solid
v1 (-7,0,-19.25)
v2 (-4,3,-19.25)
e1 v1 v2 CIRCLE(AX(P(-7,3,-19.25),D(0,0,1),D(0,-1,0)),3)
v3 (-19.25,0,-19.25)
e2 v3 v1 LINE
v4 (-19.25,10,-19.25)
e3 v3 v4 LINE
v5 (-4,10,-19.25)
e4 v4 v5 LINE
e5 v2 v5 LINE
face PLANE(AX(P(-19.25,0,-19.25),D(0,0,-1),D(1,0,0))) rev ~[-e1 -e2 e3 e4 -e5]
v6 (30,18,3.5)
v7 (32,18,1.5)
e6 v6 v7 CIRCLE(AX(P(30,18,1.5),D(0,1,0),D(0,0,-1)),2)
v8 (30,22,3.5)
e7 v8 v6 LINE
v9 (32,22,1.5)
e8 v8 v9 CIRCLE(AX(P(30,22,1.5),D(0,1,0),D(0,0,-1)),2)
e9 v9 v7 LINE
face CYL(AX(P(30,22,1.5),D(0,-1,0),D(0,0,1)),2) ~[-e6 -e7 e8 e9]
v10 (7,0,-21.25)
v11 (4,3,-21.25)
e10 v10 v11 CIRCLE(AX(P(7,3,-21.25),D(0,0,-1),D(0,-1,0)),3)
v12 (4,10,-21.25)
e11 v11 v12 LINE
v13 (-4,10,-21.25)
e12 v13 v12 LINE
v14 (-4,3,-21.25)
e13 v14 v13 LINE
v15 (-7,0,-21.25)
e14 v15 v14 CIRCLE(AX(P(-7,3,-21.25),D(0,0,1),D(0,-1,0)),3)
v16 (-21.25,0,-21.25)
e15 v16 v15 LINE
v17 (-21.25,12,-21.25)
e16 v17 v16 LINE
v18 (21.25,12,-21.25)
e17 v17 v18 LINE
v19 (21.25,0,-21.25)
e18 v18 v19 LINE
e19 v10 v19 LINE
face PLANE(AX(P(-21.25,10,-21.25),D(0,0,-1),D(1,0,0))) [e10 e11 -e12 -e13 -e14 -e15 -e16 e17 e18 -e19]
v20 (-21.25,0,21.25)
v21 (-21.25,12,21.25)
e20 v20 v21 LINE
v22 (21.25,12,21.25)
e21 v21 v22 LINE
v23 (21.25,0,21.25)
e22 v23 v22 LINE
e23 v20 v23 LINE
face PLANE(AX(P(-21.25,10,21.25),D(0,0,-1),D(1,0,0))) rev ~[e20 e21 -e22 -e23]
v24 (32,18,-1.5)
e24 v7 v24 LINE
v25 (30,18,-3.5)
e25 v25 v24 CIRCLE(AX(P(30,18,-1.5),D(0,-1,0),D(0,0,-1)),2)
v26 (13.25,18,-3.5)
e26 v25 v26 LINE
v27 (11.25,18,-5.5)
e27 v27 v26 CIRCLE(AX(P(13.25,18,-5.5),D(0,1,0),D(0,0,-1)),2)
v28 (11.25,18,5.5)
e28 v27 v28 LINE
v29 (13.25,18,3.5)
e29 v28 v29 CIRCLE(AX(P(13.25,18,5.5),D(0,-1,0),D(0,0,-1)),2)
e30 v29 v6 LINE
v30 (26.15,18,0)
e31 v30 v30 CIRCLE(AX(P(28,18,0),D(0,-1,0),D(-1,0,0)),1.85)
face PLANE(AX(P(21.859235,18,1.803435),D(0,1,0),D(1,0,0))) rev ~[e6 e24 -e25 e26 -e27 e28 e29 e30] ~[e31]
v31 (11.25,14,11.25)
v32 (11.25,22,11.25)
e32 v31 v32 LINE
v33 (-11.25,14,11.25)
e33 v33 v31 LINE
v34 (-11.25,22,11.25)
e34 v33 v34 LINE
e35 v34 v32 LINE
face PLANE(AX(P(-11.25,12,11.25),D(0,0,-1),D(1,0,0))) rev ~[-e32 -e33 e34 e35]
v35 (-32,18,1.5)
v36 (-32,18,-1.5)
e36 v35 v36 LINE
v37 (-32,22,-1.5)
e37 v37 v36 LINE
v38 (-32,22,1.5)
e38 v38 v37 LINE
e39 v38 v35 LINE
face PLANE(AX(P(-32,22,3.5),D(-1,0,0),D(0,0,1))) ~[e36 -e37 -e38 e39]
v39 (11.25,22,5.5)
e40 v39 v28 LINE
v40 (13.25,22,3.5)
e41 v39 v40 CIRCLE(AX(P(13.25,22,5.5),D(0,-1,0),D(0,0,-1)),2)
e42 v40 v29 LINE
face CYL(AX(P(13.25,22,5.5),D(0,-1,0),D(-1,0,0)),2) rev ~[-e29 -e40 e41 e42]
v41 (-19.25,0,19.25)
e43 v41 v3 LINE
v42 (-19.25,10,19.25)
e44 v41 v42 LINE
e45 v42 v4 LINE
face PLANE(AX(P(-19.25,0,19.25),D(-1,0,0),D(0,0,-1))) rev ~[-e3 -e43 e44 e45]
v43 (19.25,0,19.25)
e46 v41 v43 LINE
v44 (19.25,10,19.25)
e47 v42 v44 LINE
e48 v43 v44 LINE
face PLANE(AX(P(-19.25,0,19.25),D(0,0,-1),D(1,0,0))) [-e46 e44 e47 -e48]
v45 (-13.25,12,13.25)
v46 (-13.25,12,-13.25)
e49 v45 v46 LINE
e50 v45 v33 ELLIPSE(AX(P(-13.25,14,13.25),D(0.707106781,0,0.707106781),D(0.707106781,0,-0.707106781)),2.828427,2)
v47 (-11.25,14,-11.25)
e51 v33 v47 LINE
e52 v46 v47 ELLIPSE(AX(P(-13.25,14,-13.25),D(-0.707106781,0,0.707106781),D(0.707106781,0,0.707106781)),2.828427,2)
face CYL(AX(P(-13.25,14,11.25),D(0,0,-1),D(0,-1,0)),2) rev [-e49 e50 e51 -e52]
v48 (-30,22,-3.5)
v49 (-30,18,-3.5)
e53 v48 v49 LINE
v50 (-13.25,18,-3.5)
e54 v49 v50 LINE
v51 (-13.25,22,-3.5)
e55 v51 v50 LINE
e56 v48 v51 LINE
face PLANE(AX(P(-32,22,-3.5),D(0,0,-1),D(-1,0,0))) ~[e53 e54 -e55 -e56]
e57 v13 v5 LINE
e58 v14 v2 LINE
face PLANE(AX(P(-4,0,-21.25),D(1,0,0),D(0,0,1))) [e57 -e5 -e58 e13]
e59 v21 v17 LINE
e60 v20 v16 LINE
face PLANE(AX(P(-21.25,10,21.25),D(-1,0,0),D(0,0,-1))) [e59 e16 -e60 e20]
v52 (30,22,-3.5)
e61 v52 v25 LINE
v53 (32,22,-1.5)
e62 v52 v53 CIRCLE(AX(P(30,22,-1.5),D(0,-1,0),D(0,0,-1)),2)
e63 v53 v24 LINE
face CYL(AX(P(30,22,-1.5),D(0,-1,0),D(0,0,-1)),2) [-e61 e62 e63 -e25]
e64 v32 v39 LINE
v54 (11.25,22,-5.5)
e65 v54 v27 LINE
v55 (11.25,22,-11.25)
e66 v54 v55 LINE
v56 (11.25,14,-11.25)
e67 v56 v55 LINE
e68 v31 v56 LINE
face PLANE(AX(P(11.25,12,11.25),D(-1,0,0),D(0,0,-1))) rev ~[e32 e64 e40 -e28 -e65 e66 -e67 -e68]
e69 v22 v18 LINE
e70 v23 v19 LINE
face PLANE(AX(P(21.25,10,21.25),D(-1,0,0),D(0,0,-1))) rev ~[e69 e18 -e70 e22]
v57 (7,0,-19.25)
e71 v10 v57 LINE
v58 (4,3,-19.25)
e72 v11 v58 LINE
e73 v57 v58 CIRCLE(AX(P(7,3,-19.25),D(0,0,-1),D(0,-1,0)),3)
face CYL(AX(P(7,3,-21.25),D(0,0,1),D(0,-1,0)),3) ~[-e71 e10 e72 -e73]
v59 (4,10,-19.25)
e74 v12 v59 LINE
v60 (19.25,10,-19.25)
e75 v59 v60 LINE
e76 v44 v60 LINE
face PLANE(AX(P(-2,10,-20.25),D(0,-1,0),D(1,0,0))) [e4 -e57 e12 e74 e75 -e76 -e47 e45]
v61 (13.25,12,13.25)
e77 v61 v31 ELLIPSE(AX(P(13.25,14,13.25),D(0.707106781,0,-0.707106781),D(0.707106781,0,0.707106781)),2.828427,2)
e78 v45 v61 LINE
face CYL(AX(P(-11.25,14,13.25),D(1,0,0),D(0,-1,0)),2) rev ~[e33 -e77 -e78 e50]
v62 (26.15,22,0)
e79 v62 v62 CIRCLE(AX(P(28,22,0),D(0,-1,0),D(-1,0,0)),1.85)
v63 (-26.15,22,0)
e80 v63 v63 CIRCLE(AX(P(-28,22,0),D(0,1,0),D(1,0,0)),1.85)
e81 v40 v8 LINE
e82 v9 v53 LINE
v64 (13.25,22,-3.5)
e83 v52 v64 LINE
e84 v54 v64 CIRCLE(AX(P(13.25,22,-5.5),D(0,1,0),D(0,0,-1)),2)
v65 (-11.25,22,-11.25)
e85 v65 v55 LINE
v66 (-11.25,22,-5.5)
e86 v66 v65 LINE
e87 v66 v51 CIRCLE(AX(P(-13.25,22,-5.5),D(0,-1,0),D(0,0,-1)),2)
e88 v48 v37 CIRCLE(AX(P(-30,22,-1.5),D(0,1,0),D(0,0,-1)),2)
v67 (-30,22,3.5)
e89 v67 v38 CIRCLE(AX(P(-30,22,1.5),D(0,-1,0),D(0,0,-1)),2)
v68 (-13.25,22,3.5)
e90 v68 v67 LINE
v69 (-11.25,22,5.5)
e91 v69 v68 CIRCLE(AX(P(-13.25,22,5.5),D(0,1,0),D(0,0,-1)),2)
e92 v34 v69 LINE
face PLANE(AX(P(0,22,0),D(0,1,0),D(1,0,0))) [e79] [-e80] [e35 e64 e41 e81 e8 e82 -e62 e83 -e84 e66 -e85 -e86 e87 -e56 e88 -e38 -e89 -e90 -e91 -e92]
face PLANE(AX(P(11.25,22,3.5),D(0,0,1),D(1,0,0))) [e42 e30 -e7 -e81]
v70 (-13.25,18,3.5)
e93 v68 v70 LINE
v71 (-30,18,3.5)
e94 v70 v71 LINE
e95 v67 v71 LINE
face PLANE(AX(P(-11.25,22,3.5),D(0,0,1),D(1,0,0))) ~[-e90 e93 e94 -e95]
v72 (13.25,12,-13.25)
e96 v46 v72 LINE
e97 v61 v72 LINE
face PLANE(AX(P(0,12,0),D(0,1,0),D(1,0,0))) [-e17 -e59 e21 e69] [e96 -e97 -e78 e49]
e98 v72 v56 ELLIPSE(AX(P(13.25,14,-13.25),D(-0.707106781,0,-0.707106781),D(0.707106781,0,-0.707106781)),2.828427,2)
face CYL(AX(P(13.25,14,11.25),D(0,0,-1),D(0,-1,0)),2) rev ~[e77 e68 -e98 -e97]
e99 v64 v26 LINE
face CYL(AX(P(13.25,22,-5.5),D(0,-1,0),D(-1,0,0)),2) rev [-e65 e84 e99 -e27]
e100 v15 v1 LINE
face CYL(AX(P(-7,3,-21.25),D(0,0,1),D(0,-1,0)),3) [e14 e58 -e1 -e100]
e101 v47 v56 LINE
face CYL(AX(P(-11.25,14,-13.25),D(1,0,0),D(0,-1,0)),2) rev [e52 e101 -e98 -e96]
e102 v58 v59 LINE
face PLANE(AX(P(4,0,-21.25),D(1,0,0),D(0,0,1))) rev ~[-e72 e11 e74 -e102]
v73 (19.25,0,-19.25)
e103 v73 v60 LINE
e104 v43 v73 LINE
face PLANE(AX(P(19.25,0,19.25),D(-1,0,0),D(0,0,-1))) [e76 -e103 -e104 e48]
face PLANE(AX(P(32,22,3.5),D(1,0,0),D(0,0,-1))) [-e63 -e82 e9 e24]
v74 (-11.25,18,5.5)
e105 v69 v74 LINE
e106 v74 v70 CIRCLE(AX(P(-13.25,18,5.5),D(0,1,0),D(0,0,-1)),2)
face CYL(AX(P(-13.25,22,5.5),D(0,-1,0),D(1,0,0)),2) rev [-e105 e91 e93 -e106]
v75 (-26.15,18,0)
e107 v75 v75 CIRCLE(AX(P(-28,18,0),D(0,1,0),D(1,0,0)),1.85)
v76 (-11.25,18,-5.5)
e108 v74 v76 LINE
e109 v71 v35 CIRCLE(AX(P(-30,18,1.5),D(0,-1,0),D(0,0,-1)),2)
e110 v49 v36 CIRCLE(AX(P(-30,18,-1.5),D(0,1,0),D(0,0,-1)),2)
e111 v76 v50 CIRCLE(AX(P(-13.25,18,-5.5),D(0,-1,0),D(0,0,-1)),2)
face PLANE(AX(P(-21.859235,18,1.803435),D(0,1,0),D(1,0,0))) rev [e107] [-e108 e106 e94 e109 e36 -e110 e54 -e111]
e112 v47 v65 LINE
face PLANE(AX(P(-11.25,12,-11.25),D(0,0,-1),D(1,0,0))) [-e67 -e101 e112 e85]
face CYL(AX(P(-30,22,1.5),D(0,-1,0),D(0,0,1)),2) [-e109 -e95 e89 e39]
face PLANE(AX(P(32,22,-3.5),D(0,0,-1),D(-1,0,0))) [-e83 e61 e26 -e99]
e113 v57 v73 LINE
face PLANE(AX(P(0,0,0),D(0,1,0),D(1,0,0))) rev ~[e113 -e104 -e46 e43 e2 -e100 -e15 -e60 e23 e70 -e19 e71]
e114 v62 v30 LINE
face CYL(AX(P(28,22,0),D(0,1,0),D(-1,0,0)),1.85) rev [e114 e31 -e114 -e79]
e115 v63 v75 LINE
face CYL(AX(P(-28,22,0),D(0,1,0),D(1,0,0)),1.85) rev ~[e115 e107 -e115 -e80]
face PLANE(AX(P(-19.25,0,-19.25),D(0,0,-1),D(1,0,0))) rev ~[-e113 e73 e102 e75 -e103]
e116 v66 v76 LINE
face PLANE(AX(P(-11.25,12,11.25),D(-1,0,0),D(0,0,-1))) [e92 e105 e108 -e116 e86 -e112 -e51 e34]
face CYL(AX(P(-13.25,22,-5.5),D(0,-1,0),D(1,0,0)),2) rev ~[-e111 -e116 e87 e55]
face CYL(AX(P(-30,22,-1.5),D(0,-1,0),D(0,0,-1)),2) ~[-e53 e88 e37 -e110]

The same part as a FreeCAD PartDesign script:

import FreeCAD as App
import Part
import Sketcher
from FreeCAD import Vector


def edges_at(feature, points):
    """Names of the edges that pass closest to the given points."""
    edges = feature.Shape.Edges
    near = lambda p: min(range(len(edges)), key=lambda i: edges[i].distToShape(Part.Vertex(*p))[0])
    return sorted({f"Edge{near(p) + 1}" for p in points})


def add_polygon(sketch, points):
    """Adds a closed chain of lines whose ends are joined by coincident constraints."""
    first, n = sketch.GeometryCount, len(points)
    for a, b in zip(points, points[1:] + points[:1]):
        sketch.addGeometry(Part.LineSegment(App.Vector(*a, 0), App.Vector(*b, 0)), False)
    for i in range(n):
        sketch.addConstraint(Sketcher.Constraint("Coincident", first + i, 2, first + (i + 1) % n, 1))

doc = App.newDocument("Part")
body = doc.addObject("PartDesign::Body", "Body")

# Sketch on XZ plane
sketch1 = doc.addObject("Sketcher::SketchObject", "Sketch")
body.addObject(sketch1)
sketch1.AttachmentSupport = (doc.XZ_Plane, [""])
sketch1.MapMode = "FlatFace"
add_polygon(sketch1, [(-21.25, -21.25), (-21.25, 21.25), (21.25, 21.25), (21.25, -21.25)])  # lines 0-3
add_polygon(sketch1, [(19.25, 19.25), (-19.25, 19.25), (-19.25, -19.25), (19.25, -19.25)])  # lines 4-7
sketch1.addConstraint([
    Sketcher.Constraint("Vertical", 0),
    Sketcher.Constraint("Horizontal", 1),
    Sketcher.Constraint("Vertical", 2),
    Sketcher.Constraint("Horizontal", 3),
    Sketcher.Constraint("Horizontal", 4),
    Sketcher.Constraint("Vertical", 5),
    Sketcher.Constraint("Horizontal", 6),
    Sketcher.Constraint("Vertical", 7),
    Sketcher.Constraint("Symmetric", 0, 2, 2, 2, -1, 1),
    Sketcher.Constraint("Symmetric", 4, 2, 6, 2, -1, 1),
    Sketcher.Constraint("Equal", 3, 0),
    Sketcher.Constraint("Equal", 6, 5),
    Sketcher.Constraint("DistanceX", 1, 1, 1, 2, 42.5),
    Sketcher.Constraint("DistanceX", 4, 2, 4, 1, 38.5),
])
pad1 = doc.addObject("PartDesign::Pad", "Pad")
body.addObject(pad1)
pad1.Profile = sketch1
pad1.Length = 10
pad1.Reversed = True

# Sketch on XZ plane
sketch2 = doc.addObject("Sketcher::SketchObject", "Sketch001")
body.addObject(sketch2)
sketch2.AttachmentSupport = (doc.XZ_Plane, [""])
sketch2.MapMode = "FlatFace"
sketch2.AttachmentOffset = App.Placement(Vector(0, 0, -10), App.Rotation())
add_polygon(sketch2, [(-21.25, -21.25), (-21.25, 21.25), (21.25, 21.25), (21.25, -21.25)])  # lines 0-3
sketch2.addConstraint([
    Sketcher.Constraint("Vertical", 0),
    Sketcher.Constraint("Horizontal", 1),
    Sketcher.Constraint("Vertical", 2),
    Sketcher.Constraint("Horizontal", 3),
    Sketcher.Constraint("Symmetric", 0, 2, 2, 2, -1, 1),
    Sketcher.Constraint("Equal", 3, 0),
    Sketcher.Constraint("DistanceX", 1, 1, 1, 2, 42.5),
])
pad2 = doc.addObject("PartDesign::Pad", "Pad001")
body.addObject(pad2)
pad2.Profile = sketch2
pad2.Length = 2
pad2.Reversed = True

# Sketch on XZ plane
sketch3 = doc.addObject("Sketcher::SketchObject", "Sketch002")
body.addObject(sketch3)
sketch3.AttachmentSupport = (doc.XZ_Plane, [""])
sketch3.MapMode = "FlatFace"
add_polygon(sketch3, [(-4, -19.25), (-4, -21.25), (4, -21.25), (4, -19.25)])  # lines 0-3
sketch3.addConstraint([
    Sketcher.Constraint("Vertical", 0),
    Sketcher.Constraint("Horizontal", 1),
    Sketcher.Constraint("Vertical", 2),
    Sketcher.Constraint("Horizontal", 3),
    Sketcher.Constraint("DistanceX", 1, 1, 1, 2, 8.0),
    Sketcher.Constraint("DistanceY", 0, 2, 0, 1, 2.0),
    Sketcher.Constraint("DistanceX", 0, 2, -1, 1, 4.0),
    Sketcher.Constraint("DistanceY", 0, 2, -1, 1, 21.25),
])
pocket1 = doc.addObject("PartDesign::Pocket", "Pocket")
body.addObject(pocket1)
pocket1.Profile = sketch3
pocket1.Length = 10

# Sketch on XZ plane
sketch4 = doc.addObject("Sketcher::SketchObject", "Sketch003")
body.addObject(sketch4)
sketch4.AttachmentSupport = (doc.XZ_Plane, [""])
sketch4.MapMode = "FlatFace"
sketch4.AttachmentOffset = App.Placement(Vector(0, 0, -12), App.Rotation())
add_polygon(sketch4, [(-11.25, -11.25), (-11.25, 11.25), (11.25, 11.25), (11.25, -11.25)])  # lines 0-3
sketch4.addConstraint([
    Sketcher.Constraint("Vertical", 0),
    Sketcher.Constraint("Horizontal", 1),
    Sketcher.Constraint("Vertical", 2),
    Sketcher.Constraint("Horizontal", 3),
    Sketcher.Constraint("Symmetric", 0, 2, 2, 2, -1, 1),
    Sketcher.Constraint("Equal", 3, 0),
    Sketcher.Constraint("DistanceX", 1, 1, 1, 2, 22.5),
])
pad3 = doc.addObject("PartDesign::Pad", "Pad002")
body.addObject(pad3)
pad3.Profile = sketch4
pad3.Length = 10
pad3.Reversed = True

# Sketch on XZ plane
sketch5 = doc.addObject("Sketcher::SketchObject", "Sketch004")
body.addObject(sketch5)
sketch5.AttachmentSupport = (doc.XZ_Plane, [""])
sketch5.MapMode = "FlatFace"
sketch5.AttachmentOffset = App.Placement(Vector(0, 0, -22), App.Rotation())
add_polygon(sketch5, [(11.25, 3.5), (32, 3.5), (32, -3.5), (11.25, -3.5)])  # lines 0-3
sketch5.addGeometry(Part.Circle(Vector(28, 0, 0), Vector(0, 0, 1), 1.85), False)  # 4
sketch5.addConstraint([
    Sketcher.Constraint("Horizontal", 0),
    Sketcher.Constraint("Vertical", 1),
    Sketcher.Constraint("Horizontal", 2),
    Sketcher.Constraint("Vertical", 3),
    Sketcher.Constraint("PointOnObject", 4, 3, -1),
    Sketcher.Constraint("Diameter", 4, 3.7),
    Sketcher.Constraint("DistanceY", 1, 2, 1, 1, 7.0),
    Sketcher.Constraint("DistanceX", -1, 1, 4, 3, 28.0),
    Sketcher.Constraint("DistanceX", -1, 1, 0, 2, 32.0),
    Sketcher.Constraint("DistanceX", 0, 1, 0, 2, 20.75),
    Sketcher.Constraint("DistanceY", -1, 1, 0, 2, 3.5),
])
pad4 = doc.addObject("PartDesign::Pad", "Pad003")
body.addObject(pad4)
pad4.Profile = sketch5
pad4.Length = 4
doc.recompute()

mirrored = doc.addObject("PartDesign::Mirrored", "Mirrored")
body.addObject(mirrored)
mirrored.Originals = [pad4]
mirrored.MirrorPlane = (doc.YZ_Plane, [""])
body.Tip = mirrored
doc.recompute()

fillet = doc.addObject("PartDesign::Fillet", "Fillet")
body.addObject(fillet)
fillet.Base = (mirrored, edges_at(mirrored, [
    (0, 12, -11.25),
    (-11.25, 12, 0),
    (0, 12, 11.25),
    (11.25, 12, 0),
    (11.25, 20, -3.5),
    (32, 20, -3.5),
    (32, 20, 3.5),
    (11.25, 20, 3.5),
    (-32, 20, -3.5),
    (-11.25, 20, -3.5),
    (-11.25, 20, 3.5),
    (-32, 20, 3.5),
]))
fillet.Radius = 2
doc.recompute()

fillet2 = doc.addObject("PartDesign::Fillet", "Fillet001")
body.addObject(fillet2)
fillet2.Base = (fillet, edges_at(fillet, [(4, 0, -20.25), (-4, 0, -20.25)]))
fillet2.Radius = 3

doc.recompute()
